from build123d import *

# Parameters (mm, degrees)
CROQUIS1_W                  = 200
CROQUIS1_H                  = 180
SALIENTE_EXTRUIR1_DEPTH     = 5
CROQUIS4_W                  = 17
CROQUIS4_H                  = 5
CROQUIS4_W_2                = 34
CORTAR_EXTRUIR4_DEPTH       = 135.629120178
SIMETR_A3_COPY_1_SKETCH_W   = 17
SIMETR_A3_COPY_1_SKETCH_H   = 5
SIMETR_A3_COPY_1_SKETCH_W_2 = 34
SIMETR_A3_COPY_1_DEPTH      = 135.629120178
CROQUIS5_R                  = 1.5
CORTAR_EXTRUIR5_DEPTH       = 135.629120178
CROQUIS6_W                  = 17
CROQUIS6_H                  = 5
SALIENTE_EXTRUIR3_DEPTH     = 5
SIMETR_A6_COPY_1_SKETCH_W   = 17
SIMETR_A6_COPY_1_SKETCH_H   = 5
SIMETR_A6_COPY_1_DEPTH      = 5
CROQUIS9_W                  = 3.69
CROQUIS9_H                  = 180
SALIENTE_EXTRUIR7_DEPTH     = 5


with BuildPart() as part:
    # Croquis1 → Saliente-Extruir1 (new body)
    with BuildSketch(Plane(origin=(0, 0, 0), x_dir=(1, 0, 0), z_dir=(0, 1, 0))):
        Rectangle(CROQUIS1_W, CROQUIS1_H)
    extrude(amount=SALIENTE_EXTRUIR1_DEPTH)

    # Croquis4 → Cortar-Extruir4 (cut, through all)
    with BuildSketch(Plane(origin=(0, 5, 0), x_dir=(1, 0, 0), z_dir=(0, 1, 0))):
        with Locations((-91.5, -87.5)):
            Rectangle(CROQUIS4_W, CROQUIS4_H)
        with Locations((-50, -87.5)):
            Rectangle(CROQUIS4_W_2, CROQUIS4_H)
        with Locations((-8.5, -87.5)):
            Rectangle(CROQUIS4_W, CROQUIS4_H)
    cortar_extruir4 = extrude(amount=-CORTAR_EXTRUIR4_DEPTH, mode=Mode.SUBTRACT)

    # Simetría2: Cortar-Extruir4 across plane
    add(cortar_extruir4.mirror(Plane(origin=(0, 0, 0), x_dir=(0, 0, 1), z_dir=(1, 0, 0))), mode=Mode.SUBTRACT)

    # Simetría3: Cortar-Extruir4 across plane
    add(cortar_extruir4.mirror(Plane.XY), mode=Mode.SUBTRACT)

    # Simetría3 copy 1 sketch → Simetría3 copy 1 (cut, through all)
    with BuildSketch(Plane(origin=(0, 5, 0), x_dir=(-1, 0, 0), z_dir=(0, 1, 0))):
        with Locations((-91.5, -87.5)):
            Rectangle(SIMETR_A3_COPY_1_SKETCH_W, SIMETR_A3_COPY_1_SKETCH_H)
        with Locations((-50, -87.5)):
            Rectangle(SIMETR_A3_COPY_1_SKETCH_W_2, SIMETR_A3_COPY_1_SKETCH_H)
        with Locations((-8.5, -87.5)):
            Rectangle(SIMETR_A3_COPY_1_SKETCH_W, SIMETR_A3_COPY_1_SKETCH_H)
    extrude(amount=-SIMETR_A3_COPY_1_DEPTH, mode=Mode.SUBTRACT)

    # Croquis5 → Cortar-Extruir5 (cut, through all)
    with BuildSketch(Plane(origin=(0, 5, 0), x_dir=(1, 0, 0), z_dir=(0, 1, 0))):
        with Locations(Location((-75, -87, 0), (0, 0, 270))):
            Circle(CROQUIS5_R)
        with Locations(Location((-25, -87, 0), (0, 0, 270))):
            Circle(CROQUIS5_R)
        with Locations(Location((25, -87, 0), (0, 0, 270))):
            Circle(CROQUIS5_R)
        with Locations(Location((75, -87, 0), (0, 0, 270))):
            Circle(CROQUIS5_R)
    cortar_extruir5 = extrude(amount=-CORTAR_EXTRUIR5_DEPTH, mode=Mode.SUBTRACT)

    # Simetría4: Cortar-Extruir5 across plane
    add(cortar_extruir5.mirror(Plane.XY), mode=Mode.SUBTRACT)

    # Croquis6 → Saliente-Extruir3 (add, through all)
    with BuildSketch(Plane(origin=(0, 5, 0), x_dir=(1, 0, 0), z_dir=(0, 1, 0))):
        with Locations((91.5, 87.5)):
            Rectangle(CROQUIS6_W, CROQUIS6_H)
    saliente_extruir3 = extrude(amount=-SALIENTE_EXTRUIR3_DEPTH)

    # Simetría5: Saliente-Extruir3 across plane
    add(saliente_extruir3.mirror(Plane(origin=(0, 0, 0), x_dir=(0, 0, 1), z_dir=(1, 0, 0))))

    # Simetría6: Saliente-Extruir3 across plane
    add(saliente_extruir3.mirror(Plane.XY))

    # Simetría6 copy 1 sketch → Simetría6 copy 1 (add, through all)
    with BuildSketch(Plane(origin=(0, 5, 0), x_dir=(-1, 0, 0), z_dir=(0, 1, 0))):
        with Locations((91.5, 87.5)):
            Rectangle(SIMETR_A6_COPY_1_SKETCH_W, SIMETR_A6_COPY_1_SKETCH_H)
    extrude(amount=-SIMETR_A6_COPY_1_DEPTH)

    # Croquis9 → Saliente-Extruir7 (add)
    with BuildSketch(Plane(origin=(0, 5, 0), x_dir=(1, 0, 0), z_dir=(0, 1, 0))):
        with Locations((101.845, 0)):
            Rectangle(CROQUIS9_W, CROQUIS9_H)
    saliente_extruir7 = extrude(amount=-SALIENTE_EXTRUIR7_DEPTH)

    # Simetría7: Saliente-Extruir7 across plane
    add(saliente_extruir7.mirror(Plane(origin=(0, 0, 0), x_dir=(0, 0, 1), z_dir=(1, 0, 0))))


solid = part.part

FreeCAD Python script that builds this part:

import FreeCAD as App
import Part
import Sketcher
from FreeCAD import Vector


def add_polygon(sketch, points):
    """Adds a closed chain of lines whose ends are joined by coincident constraints."""
    first, n = sketch.GeometryCount, len(points)
    for a, b in zip(points, points[1:] + points[:1]):
        sketch.addGeometry(Part.LineSegment(App.Vector(*a, 0), App.Vector(*b, 0)), False)
    for i in range(n):
        sketch.addConstraint(Sketcher.Constraint("Coincident", first + i, 2, first + (i + 1) % n, 1))

doc = App.newDocument("Part")
body = doc.addObject("PartDesign::Body", "Body")

# Sketch on XZ plane
sketch1 = body.newObject("Sketcher::SketchObject", "Sketch")
sketch1.AttachmentSupport = (doc.getObject("XZ_Plane"), [""])
sketch1.MapMode = "FlatFace"
add_polygon(sketch1, [(-100, -90), (-100, 90), (100, 90), (100, -90)])  # lines 0-3
sketch1.addConstraint(Sketcher.Constraint("Vertical", 0))
sketch1.addConstraint(Sketcher.Constraint("Horizontal", 1))
sketch1.addConstraint(Sketcher.Constraint("Vertical", 2))
sketch1.addConstraint(Sketcher.Constraint("Horizontal", 3))
sketch1.addConstraint(Sketcher.Constraint("Symmetric", 0, 2, 2, 2, -1, 1))
sketch1.addConstraint(Sketcher.Constraint("DistanceX", 1, 1, 1, 2, 200.0))
sketch1.addConstraint(Sketcher.Constraint("DistanceY", 0, 1, 0, 2, 180.0))
pad1 = body.newObject("PartDesign::Pad", "Pad")
pad1.Profile = sketch1
pad1.Length = 5
pad1.Reversed = True

# Sketch on XZ plane
sketch2 = body.newObject("Sketcher::SketchObject", "Sketch001")
sketch2.AttachmentSupport = (doc.getObject("XZ_Plane"), [""])
sketch2.MapMode = "FlatFace"
sketch2.AttachmentOffset = App.Placement(Vector(0, 0, -5), App.Rotation())
add_polygon(sketch2, [(-100, 85), (-100, 90), (-83, 90), (-83, 85)])  # lines 0-3
add_polygon(sketch2, [(-67, 85), (-67, 90), (-33, 90), (-33, 85)])  # lines 4-7
add_polygon(sketch2, [(-17, 85), (-17, 90), (0, 90), (0, 85)])  # lines 8-11
sketch2.addConstraint(Sketcher.Constraint("Vertical", 0))
sketch2.addConstraint(Sketcher.Constraint("Horizontal", 1))
sketch2.addConstraint(Sketcher.Constraint("Vertical", 2))
sketch2.addConstraint(Sketcher.Constraint("Horizontal", 3))
sketch2.addConstraint(Sketcher.Constraint("Vertical", 4))
sketch2.addConstraint(Sketcher.Constraint("Horizontal", 5))
sketch2.addConstraint(Sketcher.Constraint("Vertical", 6))
sketch2.addConstraint(Sketcher.Constraint("Horizontal", 7))
sketch2.addConstraint(Sketcher.Constraint("Vertical", 8))
sketch2.addConstraint(Sketcher.Constraint("Horizontal", 9))
sketch2.addConstraint(Sketcher.Constraint("Vertical", 10))
sketch2.addConstraint(Sketcher.Constraint("Horizontal", 11))
sketch2.addConstraint(Sketcher.Constraint("PointOnObject", 9, 2, -2))
sketch2.addConstraint(Sketcher.Constraint("Horizontal", 1, 2, 4, 2))
sketch2.addConstraint(Sketcher.Constraint("Horizontal", 3, 2, 6, 2))
sketch2.addConstraint(Sketcher.Constraint("Horizontal", 5, 2, 8, 2))
sketch2.addConstraint(Sketcher.Constraint("Horizontal", 7, 2, 10, 2))
sketch2.addConstraint(Sketcher.Constraint("Equal", 3, 9))
sketch2.addConstraint(Sketcher.Constraint("DistanceX", 1, 1, 1, 2, 17.0))
sketch2.addConstraint(Sketcher.Constraint("DistanceX", 5, 1, 5, 2, 34.0))
sketch2.addConstraint(Sketcher.Constraint("DistanceY", 0, 1, 0, 2, 5.0))
sketch2.addConstraint(Sketcher.Constraint("DistanceX", 0, 2, -1, 1, 100.0))
sketch2.addConstraint(Sketcher.Constraint("DistanceY", -1, 1, 0, 2, 90.0))
sketch2.addConstraint(Sketcher.Constraint("DistanceX", 4, 2, -1, 1, 67.0))
pocket1 = body.newObject("PartDesign::Pocket", "Pocket")
pocket1.Profile = sketch2
pocket1.Type = "ThroughAll"
pocket1.Reversed = True
doc.recompute()

mirrored = body.newObject("PartDesign::Mirrored", "Mirrored")
mirrored.Originals = [pocket1]
mirrored.MirrorPlane = (doc.getObject("YZ_Plane"), [""])
body.Tip = mirrored
doc.recompute()

mirrored2 = body.newObject("PartDesign::Mirrored", "Mirrored001")
mirrored2.Originals = [pocket1]
mirrored2.MirrorPlane = (doc.getObject("XY_Plane"), [""])
body.Tip = mirrored2

# Sketch on XZ plane
sketch3 = body.newObject("Sketcher::SketchObject", "Sketch002")
sketch3.AttachmentSupport = (doc.getObject("XZ_Plane"), [""])
sketch3.MapMode = "FlatFace"
sketch3.AttachmentOffset = App.Placement(Vector(0, 0, -5), App.Rotation())
add_polygon(sketch3, [(100, -85), (100, -90), (83, -90), (83, -85)])  # lines 0-3
add_polygon(sketch3, [(67, -85), (67, -90), (33, -90), (33, -85)])  # lines 4-7
add_polygon(sketch3, [(17, -85), (17, -90), (0, -90), (0, -85)])  # lines 8-11
sketch3.addConstraint(Sketcher.Constraint("Vertical", 0))
sketch3.addConstraint(Sketcher.Constraint("Horizontal", 1))
sketch3.addConstraint(Sketcher.Constraint("Vertical", 2))
sketch3.addConstraint(Sketcher.Constraint("Horizontal", 3))
sketch3.addConstraint(Sketcher.Constraint("Vertical", 4))
sketch3.addConstraint(Sketcher.Constraint("Horizontal", 5))
sketch3.addConstraint(Sketcher.Constraint("Vertical", 6))
sketch3.addConstraint(Sketcher.Constraint("Horizontal", 7))
sketch3.addConstraint(Sketcher.Constraint("Vertical", 8))
sketch3.addConstraint(Sketcher.Constraint("Horizontal", 9))
sketch3.addConstraint(Sketcher.Constraint("Vertical", 10))
sketch3.addConstraint(Sketcher.Constraint("Horizontal", 11))
sketch3.addConstraint(Sketcher.Constraint("PointOnObject", 9, 2, -2))
sketch3.addConstraint(Sketcher.Constraint("Horizontal", 1, 2, 4, 2))
sketch3.addConstraint(Sketcher.Constraint("Horizontal", 3, 2, 6, 2))
sketch3.addConstraint(Sketcher.Constraint("Horizontal", 5, 2, 8, 2))
sketch3.addConstraint(Sketcher.Constraint("Horizontal", 7, 2, 10, 2))
sketch3.addConstraint(Sketcher.Constraint("Equal", 3, 9))
sketch3.addConstraint(Sketcher.Constraint("DistanceX", 1, 2, 1, 1, 17.0))
sketch3.addConstraint(Sketcher.Constraint("DistanceX", 5, 2, 5, 1, 34.0))
sketch3.addConstraint(Sketcher.Constraint("DistanceY", 0, 2, 0, 1, 5.0))
sketch3.addConstraint(Sketcher.Constraint("DistanceX", -1, 1, 0, 2, 100.0))
sketch3.addConstraint(Sketcher.Constraint("DistanceY", 0, 2, -1, 1, 90.0))
sketch3.addConstraint(Sketcher.Constraint("DistanceX", -1, 1, 4, 2, 67.0))
pocket2 = body.newObject("PartDesign::Pocket", "Pocket001")
pocket2.Profile = sketch3
pocket2.Type = "ThroughAll"
pocket2.Reversed = True

# Sketch on XZ plane
sketch4 = body.newObject("Sketcher::SketchObject", "Sketch003")
sketch4.AttachmentSupport = (doc.getObject("XZ_Plane"), [""])
sketch4.MapMode = "FlatFace"
sketch4.AttachmentOffset = App.Placement(Vector(0, 0, -5), App.Rotation())
sketch4.addGeometry(Part.Circle(Vector(-75, 87, 0), Vector(0, 0, 1), 1.5), False)
sketch4.addGeometry(Part.Circle(Vector(-25, 87, 0), Vector(0, 0, 1), 1.5), False)
sketch4.addGeometry(Part.Circle(Vector(25, 87, 0), Vector(0, 0, 1), 1.5), False)
sketch4.addGeometry(Part.Circle(Vector(75, 87, 0), Vector(0, 0, 1), 1.5), False)
sketch4.addConstraint(Sketcher.Constraint("Equal", 0, 1))
sketch4.addConstraint(Sketcher.Constraint("Equal", 1, 2))
sketch4.addConstraint(Sketcher.Constraint("Equal", 2, 3))
sketch4.addConstraint(Sketcher.Constraint("Symmetric", 1, 3, 2, 3, -2))
sketch4.addConstraint(Sketcher.Constraint("Symmetric", 0, 3, 3, 3, -2))
sketch4.addConstraint(Sketcher.Constraint("Horizontal", 0, 3, 1, 3))
sketch4.addConstraint(Sketcher.Constraint("Diameter", 0, 3.0))
sketch4.addConstraint(Sketcher.Constraint("DistanceX", 0, 3, -1, 1, 75.0))
sketch4.addConstraint(Sketcher.Constraint("DistanceY", -1, 1, 0, 3, 87.0))
sketch4.addConstraint(Sketcher.Constraint("DistanceX", 1, 3, -1, 1, 25.0))
pocket3 = body.newObject("PartDesign::Pocket", "Pocket002")
pocket3.Profile = sketch4
pocket3.Type = "ThroughAll"
pocket3.Reversed = True
doc.recompute()

mirrored3 = body.newObject("PartDesign::Mirrored", "Mirrored002")
mirrored3.Originals = [pocket3]
mirrored3.MirrorPlane = (doc.getObject("XY_Plane"), [""])
body.Tip = mirrored3

# Sketch on XZ plane
sketch5 = body.newObject("Sketcher::SketchObject", "Sketch004")
sketch5.AttachmentSupport = (doc.getObject("XZ_Plane"), [""])
sketch5.MapMode = "FlatFace"
sketch5.AttachmentOffset = App.Placement(Vector(0, 0, -5), App.Rotation())
add_polygon(sketch5, [(83, -90), (83, -85), (100, -85), (100, -90)])  # lines 0-3
sketch5.addConstraint(Sketcher.Constraint("Vertical", 0))
sketch5.addConstraint(Sketcher.Constraint("Horizontal", 1))
sketch5.addConstraint(Sketcher.Constraint("Vertical", 2))
sketch5.addConstraint(Sketcher.Constraint("Horizontal", 3))
sketch5.addConstraint(Sketcher.Constraint("DistanceX", 1, 1, 1, 2, 17.0))
sketch5.addConstraint(Sketcher.Constraint("DistanceY", 0, 1, 0, 2, 5.0))
sketch5.addConstraint(Sketcher.Constraint("DistanceX", -1, 1, 0, 2, 83.0))
sketch5.addConstraint(Sketcher.Constraint("DistanceY", 0, 2, -1, 1, 85.0))
pad2 = body.newObject("PartDesign::Pad", "Pad001")
pad2.Profile = sketch5
pad2.Length = 5
doc.recompute()

mirrored4 = body.newObject("PartDesign::Mirrored", "Mirrored003")
mirrored4.Originals = [pad2]
mirrored4.MirrorPlane = (doc.getObject("YZ_Plane"), [""])
body.Tip = mirrored4
doc.recompute()

mirrored5 = body.newObject("PartDesign::Mirrored", "Mirrored004")
mirrored5.Originals = [pad2]
mirrored5.MirrorPlane = (doc.getObject("XY_Plane"), [""])
body.Tip = mirrored5

# Sketch on XZ plane
sketch6 = body.newObject("Sketcher::SketchObject", "Sketch005")
sketch6.AttachmentSupport = (doc.getObject("XZ_Plane"), [""])
sketch6.MapMode = "FlatFace"
sketch6.AttachmentOffset = App.Placement(Vector(0, 0, -5), App.Rotation())
add_polygon(sketch6, [(-83, 90), (-83, 85), (-100, 85), (-100, 90)])  # lines 0-3
sketch6.addConstraint(Sketcher.Constraint("Vertical", 0))
sketch6.addConstraint(Sketcher.Constraint("Horizontal", 1))
sketch6.addConstraint(Sketcher.Constraint("Vertical", 2))
sketch6.addConstraint(Sketcher.Constraint("Horizontal", 3))
sketch6.addConstraint(Sketcher.Constraint("DistanceX", 1, 2, 1, 1, 17.0))
sketch6.addConstraint(Sketcher.Constraint("DistanceY", 0, 2, 0, 1, 5.0))
sketch6.addConstraint(Sketcher.Constraint("DistanceX", 0, 2, -1, 1, 83.0))
sketch6.addConstraint(Sketcher.Constraint("DistanceY", -1, 1, 0, 2, 85.0))
pad3 = body.newObject("PartDesign::Pad", "Pad002")
pad3.Profile = sketch6
pad3.Length = 5

# Sketch on XZ plane
sketch7 = body.newObject("Sketcher::SketchObject", "Sketch006")
sketch7.AttachmentSupport = (doc.getObject("XZ_Plane"), [""])
sketch7.MapMode = "FlatFace"
sketch7.AttachmentOffset = App.Placement(Vector(0, 0, -5), App.Rotation())
add_polygon(sketch7, [(100, -90), (100, 90), (103.7, 90), (103.7, -90)])  # lines 0-3
sketch7.addConstraint(Sketcher.Constraint("Vertical", 0))
sketch7.addConstraint(Sketcher.Constraint("Horizontal", 1))
sketch7.addConstraint(Sketcher.Constraint("Vertical", 2))
sketch7.addConstraint(Sketcher.Constraint("Horizontal", 3))
sketch7.addConstraint(Sketcher.Constraint("DistanceY", 0, 1, 0, 2, 180.0))
sketch7.addConstraint(Sketcher.Constraint("DistanceX", -1, 1, 0, 2, 100.0))
sketch7.addConstraint(Sketcher.Constraint("DistanceY", -1, 1, 0, 2, 90.0))
sketch7.addConstraint(Sketcher.Constraint("DistanceX", 1, 1, 1, 2, 3.69))
pad4 = body.newObject("PartDesign::Pad", "Pad003")
pad4.Profile = sketch7
pad4.Length = 5
doc.recompute()

mirrored6 = body.newObject("PartDesign::Mirrored", "Mirrored005")
mirrored6.Originals = [pad4]
mirrored6.MirrorPlane = (doc.getObject("YZ_Plane"), [""])
body.Tip = mirrored6

doc.recompute()
